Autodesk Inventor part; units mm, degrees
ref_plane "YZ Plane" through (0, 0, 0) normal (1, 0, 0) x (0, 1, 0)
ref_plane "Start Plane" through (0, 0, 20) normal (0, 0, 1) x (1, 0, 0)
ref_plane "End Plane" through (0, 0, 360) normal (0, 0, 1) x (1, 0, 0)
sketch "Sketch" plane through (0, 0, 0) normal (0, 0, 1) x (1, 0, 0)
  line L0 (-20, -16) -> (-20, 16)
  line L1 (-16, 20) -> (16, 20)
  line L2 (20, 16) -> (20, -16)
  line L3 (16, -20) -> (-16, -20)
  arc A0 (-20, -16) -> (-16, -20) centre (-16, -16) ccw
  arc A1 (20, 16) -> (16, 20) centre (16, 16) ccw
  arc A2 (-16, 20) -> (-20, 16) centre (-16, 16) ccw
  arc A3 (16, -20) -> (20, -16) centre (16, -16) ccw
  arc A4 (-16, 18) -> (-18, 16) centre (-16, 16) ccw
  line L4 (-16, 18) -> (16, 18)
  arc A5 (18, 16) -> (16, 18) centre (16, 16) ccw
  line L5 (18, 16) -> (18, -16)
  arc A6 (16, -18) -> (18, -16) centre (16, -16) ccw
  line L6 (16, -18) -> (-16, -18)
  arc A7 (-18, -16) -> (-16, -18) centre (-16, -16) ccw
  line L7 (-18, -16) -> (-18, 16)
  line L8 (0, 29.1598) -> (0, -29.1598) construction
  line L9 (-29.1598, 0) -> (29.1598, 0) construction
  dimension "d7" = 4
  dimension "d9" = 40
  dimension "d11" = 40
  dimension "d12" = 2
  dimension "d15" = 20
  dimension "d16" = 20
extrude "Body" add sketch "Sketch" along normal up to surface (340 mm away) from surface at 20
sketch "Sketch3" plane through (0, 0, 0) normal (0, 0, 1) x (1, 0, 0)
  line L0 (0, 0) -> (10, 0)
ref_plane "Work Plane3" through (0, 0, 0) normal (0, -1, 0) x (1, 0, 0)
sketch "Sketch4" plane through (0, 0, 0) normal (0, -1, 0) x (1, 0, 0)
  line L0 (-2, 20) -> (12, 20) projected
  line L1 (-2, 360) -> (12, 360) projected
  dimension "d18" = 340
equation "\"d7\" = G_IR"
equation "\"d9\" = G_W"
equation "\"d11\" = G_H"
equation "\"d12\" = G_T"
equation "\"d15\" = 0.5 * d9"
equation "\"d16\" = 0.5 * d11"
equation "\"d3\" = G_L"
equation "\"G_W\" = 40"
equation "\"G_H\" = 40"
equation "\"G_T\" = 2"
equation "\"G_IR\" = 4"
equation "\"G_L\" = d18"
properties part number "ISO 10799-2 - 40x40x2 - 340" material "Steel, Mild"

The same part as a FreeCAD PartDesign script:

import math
import FreeCAD as App
import Part
import Sketcher

V = App.Vector

doc = App.newDocument("Part")
params = doc.addObject("Spreadsheet::Sheet", "Params")
for row, (alias, value) in enumerate([
    ("sketch1_radius", "4 mm"),
    ("sketch1_radius2", "2 mm"),
    ("pad1_length", "340 mm"),
], start=1):
    params.set(f"A{row}", alias)
    params.set(f"B{row}", "=" + value)
    params.setAlias(f"B{row}", alias)

body = doc.addObject("PartDesign::Body", "Body")

# Sketch on XY plane
sketch1 = body.newObject("Sketcher::SketchObject", "Sketch")
sketch1.AttachmentSupport = (doc.getObject("XY_Plane"), [""])
sketch1.MapMode = "FlatFace"
sketch1.AttachmentOffset = App.Placement(V(0, 0, 20), App.Rotation())
sketch1.addGeometry([
    Part.LineSegment(V(-20, 16, 0), V(-20, -16, 0)),  # 0
    Part.ArcOfCircle(Part.Circle(V(-16, -16, 0), V(0, 0, 1), 4), math.radians(180), math.radians(270)),  # 1
    Part.LineSegment(V(-16, -20, 0), V(16, -20, 0)),  # 2
    Part.ArcOfCircle(Part.Circle(V(16, -16, 0), V(0, 0, 1), 4), math.radians(-90), math.radians(0)),  # 3
    Part.LineSegment(V(20, -16, 0), V(20, 16, 0)),  # 4
    Part.ArcOfCircle(Part.Circle(V(16, 16, 0), V(0, 0, 1), 4), math.radians(0), math.radians(90)),  # 5
    Part.LineSegment(V(16, 20, 0), V(-16, 20, 0)),  # 6
    Part.ArcOfCircle(Part.Circle(V(-16, 16, 0), V(0, 0, 1), 4), math.radians(90), math.radians(180)),  # 7
    Part.ArcOfCircle(Part.Circle(V(-16, 16, 0), V(0, 0, 1), 2), math.radians(90), math.radians(180)),  # 8
    Part.LineSegment(V(-16, 18, 0), V(16, 18, 0)),  # 9
    Part.ArcOfCircle(Part.Circle(V(16, 16, 0), V(0, 0, 1), 2), math.radians(0), math.radians(90)),  # 10
    Part.LineSegment(V(18, 16, 0), V(18, -16, 0)),  # 11
    Part.ArcOfCircle(Part.Circle(V(16, -16, 0), V(0, 0, 1), 2), math.radians(-90), math.radians(0)),  # 12
    Part.LineSegment(V(16, -18, 0), V(-16, -18, 0)),  # 13
    Part.ArcOfCircle(Part.Circle(V(-16, -16, 0), V(0, 0, 1), 2), math.radians(180), math.radians(270)),  # 14
    Part.LineSegment(V(-18, -16, 0), V(-18, 16, 0)),  # 15
], False)
sketch1.addConstraint([
    Sketcher.Constraint("Tangent", 0, 2, 1, 1),
    Sketcher.Constraint("Tangent", 1, 2, 2, 1),
    Sketcher.Constraint("Tangent", 2, 2, 3, 1),
    Sketcher.Constraint("Tangent", 3, 2, 4, 1),
    Sketcher.Constraint("Tangent", 4, 2, 5, 1),
    Sketcher.Constraint("Tangent", 5, 2, 6, 1),
    Sketcher.Constraint("Tangent", 6, 2, 7, 1),
    Sketcher.Constraint("Tangent", 7, 2, 0, 1),
    Sketcher.Constraint("Tangent", 8, 1, 9, 1),
    Sketcher.Constraint("Tangent", 9, 2, 10, 2),
    Sketcher.Constraint("Tangent", 10, 1, 11, 1),
    Sketcher.Constraint("Tangent", 11, 2, 12, 2),
    Sketcher.Constraint("Tangent", 12, 1, 13, 1),
    Sketcher.Constraint("Tangent", 13, 2, 14, 2),
    Sketcher.Constraint("Tangent", 14, 1, 15, 1),
    Sketcher.Constraint("Tangent", 15, 2, 8, 2),
    Sketcher.Constraint("Vertical", 0),
    Sketcher.Constraint("Horizontal", 2),
    Sketcher.Constraint("Vertical", 4),
    Sketcher.Constraint("Horizontal", 6),
    Sketcher.Constraint("Horizontal", 9),
    Sketcher.Constraint("Vertical", 11),
    Sketcher.Constraint("Horizontal", 13),
    Sketcher.Constraint("Vertical", 15),
    Sketcher.Constraint("Coincident", 8, 3, 7, 3),
    Sketcher.Constraint("Coincident", 10, 3, 5, 3),
    Sketcher.Constraint("Coincident", 12, 3, 3, 3),
    Sketcher.Constraint("Equal", 1, 3),
    Sketcher.Constraint("Equal", 3, 5),
    Sketcher.Constraint("Equal", 5, 7),
    Sketcher.Constraint("Equal", 12, 14),
    Sketcher.Constraint("Symmetric", 1, 3, 5, 3, -1, 1),
    Sketcher.Constraint("Equal", 13, 0),
    Sketcher.Constraint("Radius", 1, 4.0),
    Sketcher.Constraint("Radius", 8, 2.0),
    Sketcher.Constraint("DistanceX", 0, 2, -1, 1, 20.0),
])
sketch1.setExpression("Constraints[33]", "Params.sketch1_radius")
sketch1.setExpression("Constraints[34]", "Params.sketch1_radius2")
pad1 = body.newObject("PartDesign::Pad", "Pad")
pad1.Profile = sketch1
pad1.setExpression("Length", "Params.pad1_length")

doc.recompute()
